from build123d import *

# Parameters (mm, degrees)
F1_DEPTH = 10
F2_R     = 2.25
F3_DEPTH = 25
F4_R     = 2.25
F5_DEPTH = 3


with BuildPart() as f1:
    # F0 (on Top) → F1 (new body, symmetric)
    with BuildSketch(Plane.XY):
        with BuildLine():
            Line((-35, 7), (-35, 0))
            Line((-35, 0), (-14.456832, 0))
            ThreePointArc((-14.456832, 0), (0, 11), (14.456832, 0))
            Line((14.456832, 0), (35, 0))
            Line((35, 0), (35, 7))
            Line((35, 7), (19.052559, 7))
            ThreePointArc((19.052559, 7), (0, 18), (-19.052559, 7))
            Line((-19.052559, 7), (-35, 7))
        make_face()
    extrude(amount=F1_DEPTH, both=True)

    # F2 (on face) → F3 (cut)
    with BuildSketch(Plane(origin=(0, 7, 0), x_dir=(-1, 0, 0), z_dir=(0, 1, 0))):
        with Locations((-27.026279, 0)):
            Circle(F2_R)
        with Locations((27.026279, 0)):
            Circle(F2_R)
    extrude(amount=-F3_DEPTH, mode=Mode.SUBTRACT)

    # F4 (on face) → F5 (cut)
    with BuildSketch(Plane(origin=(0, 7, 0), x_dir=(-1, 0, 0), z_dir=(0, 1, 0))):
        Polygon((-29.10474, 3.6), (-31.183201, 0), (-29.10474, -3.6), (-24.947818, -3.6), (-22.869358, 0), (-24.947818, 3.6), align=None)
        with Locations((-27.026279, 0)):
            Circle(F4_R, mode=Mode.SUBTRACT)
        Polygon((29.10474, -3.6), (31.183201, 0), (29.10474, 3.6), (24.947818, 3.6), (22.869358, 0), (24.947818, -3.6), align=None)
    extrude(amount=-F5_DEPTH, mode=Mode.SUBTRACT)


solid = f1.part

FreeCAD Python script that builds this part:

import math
import FreeCAD as App
import Part
import Sketcher
Q = App.Units.Quantity

doc = App.newDocument("Part")
body = doc.addObject("PartDesign::Body", "Body")

# Sketch on XY plane
sketch1 = body.newObject("Sketcher::SketchObject", "Sketch")
sketch1.AttachmentSupport = (doc.getObject("XY_Plane"), [""])
sketch1.MapMode = "FlatFace"
sketch1.addGeometry([
    Part.LineSegment(App.Vector(-35, 7, 0), App.Vector(-35, 0, 0)),  # 0
    Part.LineSegment(App.Vector(-35, 0, 0), App.Vector(-14, 0, 0)),  # 1
    Part.ArcOfCircle(Part.Circle(App.Vector(0, -4, 0), App.Vector(0, 0, 1), 15), math.radians(15), math.radians(165)),  # 2
    Part.LineSegment(App.Vector(14, 0, 0), App.Vector(35, 0, 0)),  # 3
    Part.LineSegment(App.Vector(35, 0, 0), App.Vector(35, 7, 0)),  # 4
    Part.LineSegment(App.Vector(35, 7, 0), App.Vector(19, 7, 0)),  # 5
    Part.ArcOfCircle(Part.Circle(App.Vector(0, -4, 0), App.Vector(0, 0, 1), 22), math.radians(30), math.radians(150)),  # 6
    Part.LineSegment(App.Vector(-19, 7, 0), App.Vector(-35, 7, 0)),  # 7
], False)
sketch1.addConstraint([
    Sketcher.Constraint("Coincident", 0, 2, 1, 1),
    Sketcher.Constraint("Coincident", 1, 2, 2, 2),
    Sketcher.Constraint("Coincident", 2, 1, 3, 1),
    Sketcher.Constraint("Coincident", 3, 2, 4, 1),
    Sketcher.Constraint("Coincident", 4, 2, 5, 1),
    Sketcher.Constraint("Coincident", 5, 2, 6, 1),
    Sketcher.Constraint("Coincident", 6, 2, 7, 1),
    Sketcher.Constraint("Coincident", 7, 2, 0, 1),
    Sketcher.Constraint("Vertical", 0),
    Sketcher.Constraint("Horizontal", 1),
    Sketcher.Constraint("Horizontal", 3),
    Sketcher.Constraint("Vertical", 4),
    Sketcher.Constraint("Horizontal", 5),
    Sketcher.Constraint("Horizontal", 7),
    Sketcher.Constraint("Coincident", 6, 3, 2, 3),
    Sketcher.Constraint("Symmetric", 1, 2, 2, 1, -1, 1),
    Sketcher.Constraint("Symmetric", 0, 2, 3, 2, -2),
    Sketcher.Constraint("Horizontal", 5, 2, 6, 2),
    Sketcher.Constraint("Radius", 2, 15.0),
    Sketcher.Constraint("Radius", 6, 22.0),
    Sketcher.Constraint("DistanceY", 0, 2, 0, 1, 7.0),
    Sketcher.Constraint("DistanceY", 2, 3, -1, 1, 4.0),
    Sketcher.Constraint("DistanceX", 0, 2, -1, 1, 35.0),
])
pad1 = body.newObject("PartDesign::Pad", "Pad")
pad1.Profile = sketch1
pad1.Length = 20
pad1.Midplane = True

# Sketch on XZ plane
sketch2 = body.newObject("Sketcher::SketchObject", "Sketch001")
sketch2.AttachmentSupport = (doc.getObject("XZ_Plane"), [""])
sketch2.MapMode = "FlatFace"
sketch2.AttachmentOffset = App.Placement(App.Vector(0, 0, -7), App.Rotation())
sketch2.addGeometry([
    Part.Circle(App.Vector(27, 0, 0), App.Vector(0, 0, 1), 2.2),
    Part.Circle(App.Vector(-27, 0, 0), App.Vector(0, 0, 1), 2.2),
], False)
sketch2.addConstraint([
    Sketcher.Constraint("Equal", 0, 1),
    Sketcher.Constraint("Symmetric", 0, 3, 1, 3, -1, 1),
    Sketcher.Constraint("PointOnObject", 0, 3, -1),
    Sketcher.Constraint("Diameter", 0, 4.5),
    Sketcher.Constraint("DistanceX", -1, 1, 0, 3, 27.026279),
])
pocket1 = body.newObject("PartDesign::Pocket", "Pocket")
pocket1.Profile = sketch2
pocket1.Length = 25
pocket1.Reversed = True

# Sketch on XZ plane
sketch3 = body.newObject("Sketcher::SketchObject", "Sketch002")
sketch3.AttachmentSupport = (doc.getObject("XZ_Plane"), [""])
sketch3.MapMode = "FlatFace"
sketch3.AttachmentOffset = App.Placement(App.Vector(0, 0, -7), App.Rotation())
sketch3.addGeometry([
    Part.LineSegment(App.Vector(29.1, 3.6, 0), App.Vector(31.2, 0, 0)),  # 0
    Part.LineSegment(App.Vector(31.2, 0, 0), App.Vector(29.1, -3.6, 0)),  # 1
    Part.LineSegment(App.Vector(29.1, -3.6, 0), App.Vector(24.9, -3.6, 0)),  # 2
    Part.LineSegment(App.Vector(24.9, -3.6, 0), App.Vector(22.9, 0, 0)),  # 3
    Part.LineSegment(App.Vector(22.9, 0, 0), App.Vector(24.9, 3.6, 0)),  # 4
    Part.LineSegment(App.Vector(24.9, 3.6, 0), App.Vector(29.1, 3.6, 0)),  # 5
    Part.Circle(App.Vector(27, 0, 0), App.Vector(0, 0, 1), 2.2),  # 6
    Part.LineSegment(App.Vector(-29.1, -3.6, 0), App.Vector(-31.2, 0, 0)),  # 7
    Part.LineSegment(App.Vector(-31.2, 0, 0), App.Vector(-29.1, 3.6, 0)),  # 8
    Part.LineSegment(App.Vector(-29.1, 3.6, 0), App.Vector(-24.9, 3.6, 0)),  # 9
    Part.LineSegment(App.Vector(-24.9, 3.6, 0), App.Vector(-22.9, 0, 0)),  # 10
    Part.LineSegment(App.Vector(-22.9, 0, 0), App.Vector(-24.9, -3.6, 0)),  # 11
    Part.LineSegment(App.Vector(-24.9, -3.6, 0), App.Vector(-29.1, -3.6, 0)),  # 12
], False)
sketch3.addConstraint([
    Sketcher.Constraint("Coincident", 0, 2, 1, 1),
    Sketcher.Constraint("Coincident", 1, 2, 2, 1),
    Sketcher.Constraint("Coincident", 2, 2, 3, 1),
    Sketcher.Constraint("Coincident", 3, 2, 4, 1),
    Sketcher.Constraint("Coincident", 4, 2, 5, 1),
    Sketcher.Constraint("Coincident", 5, 2, 0, 1),
    Sketcher.Constraint("Coincident", 7, 2, 8, 1),
    Sketcher.Constraint("Coincident", 8, 2, 9, 1),
    Sketcher.Constraint("Coincident", 9, 2, 10, 1),
    Sketcher.Constraint("Coincident", 10, 2, 11, 1),
    Sketcher.Constraint("Coincident", 11, 2, 12, 1),
    Sketcher.Constraint("Coincident", 12, 2, 7, 1),
    Sketcher.Constraint("Horizontal", 2),
    Sketcher.Constraint("Horizontal", 5),
    Sketcher.Constraint("Horizontal", 9),
    Sketcher.Constraint("Horizontal", 12),
    Sketcher.Constraint("Symmetric", 0, 2, 7, 2, -1, 1),
    Sketcher.Constraint("Symmetric", 1, 2, 8, 2, -1, 1),
    Sketcher.Constraint("Symmetric", 3, 2, 10, 2, -1, 1),
    Sketcher.Constraint("Symmetric", 4, 2, 11, 2, -1, 1),
    Sketcher.Constraint("Symmetric", 5, 2, 8, 2, -2),
    Sketcher.Constraint("PointOnObject", 6, 3, -1),
    Sketcher.Constraint("PointOnObject", 0, 2, -1),
    Sketcher.Constraint("PointOnObject", 3, 2, -1),
    Sketcher.Constraint("Parallel", 0, 3),
    Sketcher.Constraint("Parallel", 1, 4),
    Sketcher.Constraint("Parallel", 3, 7),
    Sketcher.Constraint("Parallel", 7, 10),
    Sketcher.Constraint("Diameter", 6, 4.5),
    Sketcher.Constraint("Angle", 0, Q("-60 deg")),
    Sketcher.Constraint("DistanceY", 1, 2, -1, 1, 3.6),
    Sketcher.Constraint("DistanceX", 2, 2, 2, 1, 4.156922),
    Sketcher.Constraint("DistanceX", -1, 1, 0, 2, 31.183201),
    Sketcher.Constraint("DistanceX", -1, 1, 6, 3, 27.026279),
])
pocket2 = body.newObject("PartDesign::Pocket", "Pocket001")
pocket2.Profile = sketch3
pocket2.Length = 3
pocket2.Reversed = True

doc.recompute()
